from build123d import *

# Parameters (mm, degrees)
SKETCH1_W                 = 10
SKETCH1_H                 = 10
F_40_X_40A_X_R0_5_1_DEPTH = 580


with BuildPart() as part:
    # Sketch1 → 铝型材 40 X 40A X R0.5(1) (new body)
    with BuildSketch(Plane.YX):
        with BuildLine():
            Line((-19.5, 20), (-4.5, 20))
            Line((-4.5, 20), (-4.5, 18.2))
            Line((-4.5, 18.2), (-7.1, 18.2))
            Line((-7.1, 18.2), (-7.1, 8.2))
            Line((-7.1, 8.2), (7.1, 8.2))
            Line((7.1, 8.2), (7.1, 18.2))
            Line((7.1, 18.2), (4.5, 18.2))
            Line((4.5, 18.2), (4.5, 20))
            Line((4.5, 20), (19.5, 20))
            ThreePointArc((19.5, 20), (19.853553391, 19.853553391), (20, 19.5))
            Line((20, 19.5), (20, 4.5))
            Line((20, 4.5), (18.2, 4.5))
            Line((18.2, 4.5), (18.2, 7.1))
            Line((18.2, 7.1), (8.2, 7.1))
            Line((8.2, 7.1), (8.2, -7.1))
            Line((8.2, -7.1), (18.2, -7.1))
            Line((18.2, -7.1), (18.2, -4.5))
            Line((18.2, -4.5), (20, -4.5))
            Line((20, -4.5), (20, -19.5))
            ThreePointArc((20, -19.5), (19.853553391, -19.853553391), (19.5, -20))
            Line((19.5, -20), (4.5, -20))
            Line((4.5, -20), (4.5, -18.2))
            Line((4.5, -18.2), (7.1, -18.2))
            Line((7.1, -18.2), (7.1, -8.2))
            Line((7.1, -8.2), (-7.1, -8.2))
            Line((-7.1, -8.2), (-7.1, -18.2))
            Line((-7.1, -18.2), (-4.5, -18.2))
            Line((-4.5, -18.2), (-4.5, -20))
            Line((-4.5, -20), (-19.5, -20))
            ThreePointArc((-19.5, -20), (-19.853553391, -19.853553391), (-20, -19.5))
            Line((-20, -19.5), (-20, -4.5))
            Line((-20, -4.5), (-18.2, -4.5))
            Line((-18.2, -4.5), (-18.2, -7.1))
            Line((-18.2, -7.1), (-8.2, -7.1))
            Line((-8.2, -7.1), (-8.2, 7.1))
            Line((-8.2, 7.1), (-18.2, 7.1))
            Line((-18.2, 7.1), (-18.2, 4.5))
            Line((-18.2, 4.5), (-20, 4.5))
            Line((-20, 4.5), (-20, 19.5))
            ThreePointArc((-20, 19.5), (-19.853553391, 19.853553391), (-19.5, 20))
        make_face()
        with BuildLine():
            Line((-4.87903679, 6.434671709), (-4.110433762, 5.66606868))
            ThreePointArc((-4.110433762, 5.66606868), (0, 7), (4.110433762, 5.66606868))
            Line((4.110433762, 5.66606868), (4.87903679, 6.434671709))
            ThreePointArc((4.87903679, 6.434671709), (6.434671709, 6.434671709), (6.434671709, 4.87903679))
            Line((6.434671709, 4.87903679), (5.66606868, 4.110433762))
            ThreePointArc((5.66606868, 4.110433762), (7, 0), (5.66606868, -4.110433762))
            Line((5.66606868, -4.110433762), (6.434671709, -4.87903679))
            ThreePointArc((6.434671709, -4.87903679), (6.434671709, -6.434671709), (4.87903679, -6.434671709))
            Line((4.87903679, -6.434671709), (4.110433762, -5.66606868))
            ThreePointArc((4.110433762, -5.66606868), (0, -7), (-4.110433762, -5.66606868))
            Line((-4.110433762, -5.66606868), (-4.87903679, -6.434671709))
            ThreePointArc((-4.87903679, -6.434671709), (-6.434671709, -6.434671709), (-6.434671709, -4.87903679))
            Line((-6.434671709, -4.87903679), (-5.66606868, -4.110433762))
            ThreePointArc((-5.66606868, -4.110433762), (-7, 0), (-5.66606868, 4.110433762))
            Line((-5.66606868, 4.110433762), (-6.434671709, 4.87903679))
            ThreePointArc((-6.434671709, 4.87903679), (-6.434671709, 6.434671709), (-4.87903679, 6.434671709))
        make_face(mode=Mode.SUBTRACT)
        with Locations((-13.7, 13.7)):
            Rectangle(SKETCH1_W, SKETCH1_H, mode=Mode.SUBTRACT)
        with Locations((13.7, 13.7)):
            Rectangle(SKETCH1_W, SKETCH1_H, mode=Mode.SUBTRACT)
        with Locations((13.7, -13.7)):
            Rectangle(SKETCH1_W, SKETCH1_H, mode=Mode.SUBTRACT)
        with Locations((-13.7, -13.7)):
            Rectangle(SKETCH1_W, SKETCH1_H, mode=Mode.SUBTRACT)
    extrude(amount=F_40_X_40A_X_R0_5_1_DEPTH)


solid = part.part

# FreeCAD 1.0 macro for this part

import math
import FreeCAD as App
import Part
import Sketcher
Q = App.Units.Quantity

doc = App.newDocument("Part")
body = doc.addObject("PartDesign::Body", "Body")

sketch1 = body.newObject("Sketcher::SketchObject", "Sketch")
sketch1.AttachmentSupport = (doc.getObject("XY_Plane"), [""])
sketch1.MapMode = "FlatFace"
sketch1.addGeometry(Part.LineSegment(App.Vector(20, -4.5, 0), App.Vector(20, -19.5, 0)), False)
sketch1.addGeometry(Part.ArcOfCircle(Part.Circle(App.Vector(19.5, -19.5, 0), App.Vector(0, 0, 1), 0.5), math.radians(-90), math.radians(0)), False)
sketch1.addGeometry(Part.LineSegment(App.Vector(19.5, -20, 0), App.Vector(4.5, -20, 0)), False)
sketch1.addGeometry(Part.LineSegment(App.Vector(4.5, -20, 0), App.Vector(4.5, -18.2, 0)), False)
sketch1.addGeometry(Part.LineSegment(App.Vector(4.5, -18.2, 0), App.Vector(7.1, -18.2, 0)), False)
sketch1.addGeometry(Part.LineSegment(App.Vector(7.1, -18.2, 0), App.Vector(7.1, -8.2, 0)), False)
sketch1.addGeometry(Part.LineSegment(App.Vector(7.1, -8.2, 0), App.Vector(-7.1, -8.2, 0)), False)
sketch1.addGeometry(Part.LineSegment(App.Vector(-7.1, -8.2, 0), App.Vector(-7.1, -18.2, 0)), False)
sketch1.addGeometry(Part.LineSegment(App.Vector(-7.1, -18.2, 0), App.Vector(-4.5, -18.2, 0)), False)
sketch1.addGeometry(Part.LineSegment(App.Vector(-4.5, -18.2, 0), App.Vector(-4.5, -20, 0)), False)
sketch1.addGeometry(Part.LineSegment(App.Vector(-4.5, -20, 0), App.Vector(-19.5, -20, 0)), False)
sketch1.addGeometry(Part.ArcOfCircle(Part.Circle(App.Vector(-19.5, -19.5, 0), App.Vector(0, 0, 1), 0.5), math.radians(180), math.radians(270)), False)
sketch1.addGeometry(Part.LineSegment(App.Vector(-20, -19.5, 0), App.Vector(-20, -4.5, 0)), False)
sketch1.addGeometry(Part.LineSegment(App.Vector(-20, -4.5, 0), App.Vector(-18.2, -4.5, 0)), False)
sketch1.addGeometry(Part.LineSegment(App.Vector(-18.2, -4.5, 0), App.Vector(-18.2, -7.1, 0)), False)
sketch1.addGeometry(Part.LineSegment(App.Vector(-18.2, -7.1, 0), App.Vector(-8.2, -7.1, 0)), False)
sketch1.addGeometry(Part.LineSegment(App.Vector(-8.2, -7.1, 0), App.Vector(-8.2, 7.1, 0)), False)
sketch1.addGeometry(Part.LineSegment(App.Vector(-8.2, 7.1, 0), App.Vector(-18.2, 7.1, 0)), False)
sketch1.addGeometry(Part.LineSegment(App.Vector(-18.2, 7.1, 0), App.Vector(-18.2, 4.5, 0)), False)
sketch1.addGeometry(Part.LineSegment(App.Vector(-18.2, 4.5, 0), App.Vector(-20, 4.5, 0)), False)
sketch1.addGeometry(Part.LineSegment(App.Vector(-20, 4.5, 0), App.Vector(-20, 19.5, 0)), False)
sketch1.addGeometry(Part.ArcOfCircle(Part.Circle(App.Vector(-19.5, 19.5, 0), App.Vector(0, 0, 1), 0.5), math.radians(90), math.radians(180)), False)
sketch1.addGeometry(Part.LineSegment(App.Vector(-19.5, 20, 0), App.Vector(-4.5, 20, 0)), False)
sketch1.addGeometry(Part.LineSegment(App.Vector(-4.5, 20, 0), App.Vector(-4.5, 18.2, 0)), False)
sketch1.addGeometry(Part.LineSegment(App.Vector(-4.5, 18.2, 0), App.Vector(-7.1, 18.2, 0)), False)
sketch1.addGeometry(Part.LineSegment(App.Vector(-7.1, 18.2, 0), App.Vector(-7.1, 8.2, 0)), False)
sketch1.addGeometry(Part.LineSegment(App.Vector(-7.1, 8.2, 0), App.Vector(7.1, 8.2, 0)), False)
sketch1.addGeometry(Part.LineSegment(App.Vector(7.1, 8.2, 0), App.Vector(7.1, 18.2, 0)), False)
sketch1.addGeometry(Part.LineSegment(App.Vector(7.1, 18.2, 0), App.Vector(4.5, 18.2, 0)), False)
sketch1.addGeometry(Part.LineSegment(App.Vector(4.5, 18.2, 0), App.Vector(4.5, 20, 0)), False)
sketch1.addGeometry(Part.LineSegment(App.Vector(4.5, 20, 0), App.Vector(19.5, 20, 0)), False)
sketch1.addGeometry(Part.ArcOfCircle(Part.Circle(App.Vector(19.5, 19.5, 0), App.Vector(0, 0, 1), 0.5), math.radians(0), math.radians(90)), False)
sketch1.addGeometry(Part.LineSegment(App.Vector(20, 19.5, 0), App.Vector(20, 4.5, 0)), False)
sketch1.addGeometry(Part.LineSegment(App.Vector(20, 4.5, 0), App.Vector(18.2, 4.5, 0)), False)
sketch1.addGeometry(Part.LineSegment(App.Vector(18.2, 4.5, 0), App.Vector(18.2, 7.1, 0)), False)
sketch1.addGeometry(Part.LineSegment(App.Vector(18.2, 7.1, 0), App.Vector(8.2, 7.1, 0)), False)
sketch1.addGeometry(Part.LineSegment(App.Vector(8.2, 7.1, 0), App.Vector(8.2, -7.1, 0)), False)
sketch1.addGeometry(Part.LineSegment(App.Vector(8.2, -7.1, 0), App.Vector(18.2, -7.1, 0)), False)
sketch1.addGeometry(Part.LineSegment(App.Vector(18.2, -7.1, 0), App.Vector(18.2, -4.5, 0)), False)
sketch1.addGeometry(Part.LineSegment(App.Vector(18.2, -4.5, 0), App.Vector(20, -4.5, 0)), False)
sketch1.addGeometry(Part.LineSegment(App.Vector(-18.7, 8.7, 0), App.Vector(-8.7, 8.7, 0)), False)
sketch1.addGeometry(Part.LineSegment(App.Vector(-8.7, 8.7, 0), App.Vector(-8.7, 18.7, 0)), False)
sketch1.addGeometry(Part.LineSegment(App.Vector(-8.7, 18.7, 0), App.Vector(-18.7, 18.7, 0)), False)
sketch1.addGeometry(Part.LineSegment(App.Vector(-18.7, 18.7, 0), App.Vector(-18.7, 8.7, 0)), False)
sketch1.addGeometry(Part.LineSegment(App.Vector(6.43, -4.88, 0), App.Vector(5.67, -4.11, 0)), False)
sketch1.addGeometry(Part.ArcOfCircle(Part.Circle(App.Vector(0, 0, 0), App.Vector(0, 0, 1), 7), math.radians(-36), math.radians(36)), False)
sketch1.addGeometry(Part.LineSegment(App.Vector(5.67, 4.11, 0), App.Vector(6.43, 4.88, 0)), False)
sketch1.addGeometry(Part.ArcOfCircle(Part.Circle(App.Vector(5.66, 5.66, 0), App.Vector(0, 0, 1), 1.1), math.radians(-45), math.radians(135)), False)
sketch1.addGeometry(Part.LineSegment(App.Vector(4.88, 6.43, 0), App.Vector(4.11, 5.67, 0)), False)
sketch1.addGeometry(Part.ArcOfCircle(Part.Circle(App.Vector(0, 0, 0), App.Vector(0, 0, 1), 7), math.radians(54), math.radians(126)), False)
sketch1.addGeometry(Part.LineSegment(App.Vector(-4.11, 5.67, 0), App.Vector(-4.88, 6.43, 0)), False)
sketch1.addGeometry(Part.ArcOfCircle(Part.Circle(App.Vector(-5.66, 5.66, 0), App.Vector(0, 0, 1), 1.1), math.radians(45), math.radians(225)), False)
sketch1.addGeometry(Part.LineSegment(App.Vector(-6.43, 4.88, 0), App.Vector(-5.67, 4.11, 0)), False)
sketch1.addGeometry(Part.ArcOfCircle(Part.Circle(App.Vector(0, 0, 0), App.Vector(0, 0, 1), 7), math.radians(144), math.radians(216)), False)
sketch1.addGeometry(Part.LineSegment(App.Vector(-5.67, -4.11, 0), App.Vector(-6.43, -4.88, 0)), False)
sketch1.addGeometry(Part.ArcOfCircle(Part.Circle(App.Vector(-5.66, -5.66, 0), App.Vector(0, 0, 1), 1.1), math.radians(135), math.radians(315)), False)
sketch1.addGeometry(Part.LineSegment(App.Vector(-4.88, -6.43, 0), App.Vector(-4.11, -5.67, 0)), False)
sketch1.addGeometry(Part.ArcOfCircle(Part.Circle(App.Vector(0, 0, 0), App.Vector(0, 0, 1), 7), math.radians(-126), math.radians(-54)), False)
sketch1.addGeometry(Part.LineSegment(App.Vector(4.11, -5.67, 0), App.Vector(4.88, -6.43, 0)), False)
sketch1.addGeometry(Part.ArcOfCircle(Part.Circle(App.Vector(5.66, -5.66, 0), App.Vector(0, 0, 1), 1.1), math.radians(-135), math.radians(45)), False)
sketch1.addGeometry(Part.LineSegment(App.Vector(-18.7, -18.7, 0), App.Vector(-8.7, -18.7, 0)), False)
sketch1.addGeometry(Part.LineSegment(App.Vector(-8.7, -18.7, 0), App.Vector(-8.7, -8.7, 0)), False)
sketch1.addGeometry(Part.LineSegment(App.Vector(-8.7, -8.7, 0), App.Vector(-18.7, -8.7, 0)), False)
sketch1.addGeometry(Part.LineSegment(App.Vector(-18.7, -8.7, 0), App.Vector(-18.7, -18.7, 0)), False)
sketch1.addGeometry(Part.LineSegment(App.Vector(8.7, 8.7, 0), App.Vector(18.7, 8.7, 0)), False)
sketch1.addGeometry(Part.LineSegment(App.Vector(18.7, 8.7, 0), App.Vector(18.7, 18.7, 0)), False)
sketch1.addGeometry(Part.LineSegment(App.Vector(18.7, 18.7, 0), App.Vector(8.7, 18.7, 0)), False)
sketch1.addGeometry(Part.LineSegment(App.Vector(8.7, 18.7, 0), App.Vector(8.7, 8.7, 0)), False)
sketch1.addGeometry(Part.LineSegment(App.Vector(8.7, -18.7, 0), App.Vector(18.7, -18.7, 0)), False)
sketch1.addGeometry(Part.LineSegment(App.Vector(18.7, -18.7, 0), App.Vector(18.7, -8.7, 0)), False)
sketch1.addGeometry(Part.LineSegment(App.Vector(18.7, -8.7, 0), App.Vector(8.7, -8.7, 0)), False)
sketch1.addGeometry(Part.LineSegment(App.Vector(8.7, -8.7, 0), App.Vector(8.7, -18.7, 0)), False)
sketch1.addConstraint(Sketcher.Constraint("Tangent", 0, 2, 1, 2))
sketch1.addConstraint(Sketcher.Constraint("Tangent", 1, 1, 2, 1))
sketch1.addConstraint(Sketcher.Constraint("Coincident", 2, 2, 3, 1))
sketch1.addConstraint(Sketcher.Constraint("Coincident", 3, 2, 4, 1))
sketch1.addConstraint(Sketcher.Constraint("Coincident", 4, 2, 5, 1))
sketch1.addConstraint(Sketcher.Constraint("Coincident", 5, 2, 6, 1))
sketch1.addConstraint(Sketcher.Constraint("Coincident", 6, 2, 7, 1))
sketch1.addConstraint(Sketcher.Constraint("Coincident", 7, 2, 8, 1))
sketch1.addConstraint(Sketcher.Constraint("Coincident", 8, 2, 9, 1))
sketch1.addConstraint(Sketcher.Constraint("Coincident", 9, 2, 10, 1))
sketch1.addConstraint(Sketcher.Constraint("Tangent", 10, 2, 11, 2))
sketch1.addConstraint(Sketcher.Constraint("Tangent", 11, 1, 12, 1))
sketch1.addConstraint(Sketcher.Constraint("Coincident", 12, 2, 13, 1))
sketch1.addConstraint(Sketcher.Constraint("Coincident", 13, 2, 14, 1))
sketch1.addConstraint(Sketcher.Constraint("Coincident", 14, 2, 15, 1))
sketch1.addConstraint(Sketcher.Constraint("Coincident", 15, 2, 16, 1))
sketch1.addConstraint(Sketcher.Constraint("Coincident", 16, 2, 17, 1))
sketch1.addConstraint(Sketcher.Constraint("Coincident", 17, 2, 18, 1))
sketch1.addConstraint(Sketcher.Constraint("Coincident", 18, 2, 19, 1))
sketch1.addConstraint(Sketcher.Constraint("Coincident", 19, 2, 20, 1))
sketch1.addConstraint(Sketcher.Constraint("Tangent", 20, 2, 21, 2))
sketch1.addConstraint(Sketcher.Constraint("Tangent", 21, 1, 22, 1))
sketch1.addConstraint(Sketcher.Constraint("Coincident", 22, 2, 23, 1))
sketch1.addConstraint(Sketcher.Constraint("Coincident", 23, 2, 24, 1))
sketch1.addConstraint(Sketcher.Constraint("Coincident", 24, 2, 25, 1))
sketch1.addConstraint(Sketcher.Constraint("Coincident", 25, 2, 26, 1))
sketch1.addConstraint(Sketcher.Constraint("Coincident", 26, 2, 27, 1))
sketch1.addConstraint(Sketcher.Constraint("Coincident", 27, 2, 28, 1))
sketch1.addConstraint(Sketcher.Constraint("Coincident", 28, 2, 29, 1))
sketch1.addConstraint(Sketcher.Constraint("Coincident", 29, 2, 30, 1))
sketch1.addConstraint(Sketcher.Constraint("Tangent", 30, 2, 31, 2))
sketch1.addConstraint(Sketcher.Constraint("Tangent", 31, 1, 32, 1))
sketch1.addConstraint(Sketcher.Constraint("Coincident", 32, 2, 33, 1))
sketch1.addConstraint(Sketcher.Constraint("Coincident", 33, 2, 34, 1))
sketch1.addConstraint(Sketcher.Constraint("Coincident", 34, 2, 35, 1))
sketch1.addConstraint(Sketcher.Constraint("Coincident", 35, 2, 36, 1))
sketch1.addConstraint(Sketcher.Constraint("Coincident", 36, 2, 37, 1))
sketch1.addConstraint(Sketcher.Constraint("Coincident", 37, 2, 38, 1))
sketch1.addConstraint(Sketcher.Constraint("Coincident", 38, 2, 39, 1))
sketch1.addConstraint(Sketcher.Constraint("Coincident", 39, 2, 0, 1))
sketch1.addConstraint(Sketcher.Constraint("Coincident", 40, 2, 41, 1))
sketch1.addConstraint(Sketcher.Constraint("Coincident", 41, 2, 42, 1))
sketch1.addConstraint(Sketcher.Constraint("Coincident", 42, 2, 43, 1))
sketch1.addConstraint(Sketcher.Constraint("Coincident", 43, 2, 40, 1))
sketch1.addConstraint(Sketcher.Constraint("Coincident", 44, 2, 45, 1))
sketch1.addConstraint(Sketcher.Constraint("Coincident", 45, 2, 46, 1))
sketch1.addConstraint(Sketcher.Constraint("Tangent", 46, 2, 47, 1))
sketch1.addConstraint(Sketcher.Constraint("Tangent", 47, 2, 48, 1))
sketch1.addConstraint(Sketcher.Constraint("Coincident", 48, 2, 49, 1))
sketch1.addConstraint(Sketcher.Constraint("Coincident", 49, 2, 50, 1))
sketch1.addConstraint(Sketcher.Constraint("Tangent", 50, 2, 51, 1))
sketch1.addConstraint(Sketcher.Constraint("Tangent", 51, 2, 52, 1))
sketch1.addConstraint(Sketcher.Constraint("Coincident", 52, 2, 53, 1))
sketch1.addConstraint(Sketcher.Constraint("Coincident", 53, 2, 54, 1))
sketch1.addConstraint(Sketcher.Constraint("Tangent", 54, 2, 55, 1))
sketch1.addConstraint(Sketcher.Constraint("Tangent", 55, 2, 56, 1))
sketch1.addConstraint(Sketcher.Constraint("Coincident", 56, 2, 57, 1))
sketch1.addConstraint(Sketcher.Constraint("Coincident", 57, 2, 58, 1))
sketch1.addConstraint(Sketcher.Constraint("Tangent", 58, 2, 59, 1))
sketch1.addConstraint(Sketcher.Constraint("Tangent", 59, 2, 44, 1))
sketch1.addConstraint(Sketcher.Constraint("Coincident", 60, 2, 61, 1))
sketch1.addConstraint(Sketcher.Constraint("Coincident", 61, 2, 62, 1))
sketch1.addConstraint(Sketcher.Constraint("Coincident", 62, 2, 63, 1))
sketch1.addConstraint(Sketcher.Constraint("Coincident", 63, 2, 60, 1))
sketch1.addConstraint(Sketcher.Constraint("Coincident", 64, 2, 65, 1))
sketch1.addConstraint(Sketcher.Constraint("Coincident", 65, 2, 66, 1))
sketch1.addConstraint(Sketcher.Constraint("Coincident", 66, 2, 67, 1))
sketch1.addConstraint(Sketcher.Constraint("Coincident", 67, 2, 64, 1))
sketch1.addConstraint(Sketcher.Constraint("Coincident", 68, 2, 69, 1))
sketch1.addConstraint(Sketcher.Constraint("Coincident", 69, 2, 70, 1))
sketch1.addConstraint(Sketcher.Constraint("Coincident", 70, 2, 71, 1))
sketch1.addConstraint(Sketcher.Constraint("Coincident", 71, 2, 68, 1))
sketch1.addConstraint(Sketcher.Constraint("Vertical", 0))
sketch1.addConstraint(Sketcher.Constraint("Horizontal", 2))
sketch1.addConstraint(Sketcher.Constraint("Vertical", 3))
sketch1.addConstraint(Sketcher.Constraint("Horizontal", 4))
sketch1.addConstraint(Sketcher.Constraint("Vertical", 5))
sketch1.addConstraint(Sketcher.Constraint("Horizontal", 6))
sketch1.addConstraint(Sketcher.Constraint("Vertical", 7))
sketch1.addConstraint(Sketcher.Constraint("Horizontal", 8))
sketch1.addConstraint(Sketcher.Constraint("Vertical", 9))
sketch1.addConstraint(Sketcher.Constraint("Horizontal", 10))
sketch1.addConstraint(Sketcher.Constraint("Vertical", 12))
sketch1.addConstraint(Sketcher.Constraint("Horizontal", 13))
sketch1.addConstraint(Sketcher.Constraint("Vertical", 14))
sketch1.addConstraint(Sketcher.Constraint("Horizontal", 15))
sketch1.addConstraint(Sketcher.Constraint("Vertical", 16))
sketch1.addConstraint(Sketcher.Constraint("Horizontal", 17))
sketch1.addConstraint(Sketcher.Constraint("Vertical", 18))
sketch1.addConstraint(Sketcher.Constraint("Horizontal", 19))
sketch1.addConstraint(Sketcher.Constraint("Vertical", 20))
sketch1.addConstraint(Sketcher.Constraint("Horizontal", 22))
sketch1.addConstraint(Sketcher.Constraint("Vertical", 23))
sketch1.addConstraint(Sketcher.Constraint("Horizontal", 24))
sketch1.addConstraint(Sketcher.Constraint("Vertical", 25))
sketch1.addConstraint(Sketcher.Constraint("Horizontal", 26))
sketch1.addConstraint(Sketcher.Constraint("Vertical", 27))
sketch1.addConstraint(Sketcher.Constraint("Horizontal", 28))
sketch1.addConstraint(Sketcher.Constraint("Vertical", 29))
sketch1.addConstraint(Sketcher.Constraint("Horizontal", 30))
sketch1.addConstraint(Sketcher.Constraint("Vertical", 32))
sketch1.addConstraint(Sketcher.Constraint("Horizontal", 33))
sketch1.addConstraint(Sketcher.Constraint("Vertical", 34))
sketch1.addConstraint(Sketcher.Constraint("Horizontal", 35))
sketch1.addConstraint(Sketcher.Constraint("Vertical", 36))
sketch1.addConstraint(Sketcher.Constraint("Horizontal", 37))
sketch1.addConstraint(Sketcher.Constraint("Vertical", 38))
sketch1.addConstraint(Sketcher.Constraint("Horizontal", 39))
sketch1.addConstraint(Sketcher.Constraint("Horizontal", 40))
sketch1.addConstraint(Sketcher.Constraint("Vertical", 41))
sketch1.addConstraint(Sketcher.Constraint("Horizontal", 42))
sketch1.addConstraint(Sketcher.Constraint("Vertical", 43))
sketch1.addConstraint(Sketcher.Constraint("Horizontal", 60))
sketch1.addConstraint(Sketcher.Constraint("Vertical", 61))
sketch1.addConstraint(Sketcher.Constraint("Horizontal", 62))
sketch1.addConstraint(Sketcher.Constraint("Vertical", 63))
sketch1.addConstraint(Sketcher.Constraint("Horizontal", 64))
sketch1.addConstraint(Sketcher.Constraint("Vertical", 65))
sketch1.addConstraint(Sketcher.Constraint("Horizontal", 66))
sketch1.addConstraint(Sketcher.Constraint("Vertical", 67))
sketch1.addConstraint(Sketcher.Constraint("Horizontal", 68))
sketch1.addConstraint(Sketcher.Constraint("Vertical", 69))
sketch1.addConstraint(Sketcher.Constraint("Horizontal", 70))
sketch1.addConstraint(Sketcher.Constraint("Vertical", 71))
sketch1.addConstraint(Sketcher.Constraint("Coincident", 45, 3, -1, 1))
sketch1.addConstraint(Sketcher.Constraint("Coincident", 49, 3, -1, 1))
sketch1.addConstraint(Sketcher.Constraint("Coincident", 53, 3, -1, 1))
sketch1.addConstraint(Sketcher.Constraint("Coincident", 57, 3, -1, 1))
sketch1.addConstraint(Sketcher.Constraint("Equal", 1, 11))
sketch1.addConstraint(Sketcher.Constraint("Equal", 11, 21))
sketch1.addConstraint(Sketcher.Constraint("Equal", 21, 31))
sketch1.addConstraint(Sketcher.Constraint("Equal", 45, 49))
sketch1.addConstraint(Sketcher.Constraint("Equal", 47, 51))
sketch1.addConstraint(Sketcher.Constraint("Equal", 49, 53))
sketch1.addConstraint(Sketcher.Constraint("Equal", 51, 55))
sketch1.addConstraint(Sketcher.Constraint("Equal", 53, 57))
sketch1.addConstraint(Sketcher.Constraint("Equal", 55, 59))
sketch1.addConstraint(Sketcher.Constraint("Symmetric", 1, 3, 21, 3, -1, 1))
sketch1.addConstraint(Sketcher.Constraint("Symmetric", 11, 3, 31, 3, -1, 1))
sketch1.addConstraint(Sketcher.Constraint("Symmetric", 47, 3, 55, 3, -1, 1))
sketch1.addConstraint(Sketcher.Constraint("Symmetric", 51, 3, 59, 3, -1, 1))
sketch1.addConstraint(Sketcher.Constraint("Symmetric", 3, 2, 23, 2, -1, 1))
sketch1.addConstraint(Sketcher.Constraint("Symmetric", 5, 2, 25, 2, -1, 1))
sketch1.addConstraint(Sketcher.Constraint("Symmetric", 7, 2, 27, 2, -1, 1))
sketch1.addConstraint(Sketcher.Constraint("Symmetric", 13, 2, 33, 2, -1, 1))
sketch1.addConstraint(Sketcher.Constraint("Symmetric", 15, 2, 35, 2, -1, 1))
sketch1.addConstraint(Sketcher.Constraint("Symmetric", 17, 2, 37, 2, -1, 1))
sketch1.addConstraint(Sketcher.Constraint("Symmetric", 62, 2, 64, 2, -1, 1))
sketch1.addConstraint(Sketcher.Constraint("Symmetric", 60, 2, 66, 2, -1, 1))
sketch1.addConstraint(Sketcher.Constraint("Symmetric", 42, 2, 68, 2, -1, 1))
sketch1.addConstraint(Sketcher.Constraint("Symmetric", 40, 2, 70, 2, -1, 1))
sketch1.addConstraint(Sketcher.Constraint("Symmetric", 1, 3, 11, 3, -2))
sketch1.addConstraint(Sketcher.Constraint("Symmetric", 47, 3, 51, 3, -2))
sketch1.addConstraint(Sketcher.Constraint("Symmetric", 4, 2, 7, 2, -2))
sketch1.addConstraint(Sketcher.Constraint("Symmetric", 18, 2, 33, 2, -2))
sketch1.addConstraint(Sketcher.Constraint("Symmetric", 43, 2, 64, 2, -2))
sketch1.addConstraint(Sketcher.Constraint("Symmetric", 41, 2, 66, 2, -2))
sketch1.addConstraint(Sketcher.Constraint("Perpendicular", 44, 46))
sketch1.addConstraint(Sketcher.Constraint("Parallel", 46, 48))
sketch1.addConstraint(Sketcher.Constraint("Perpendicular", 48, 50))
sketch1.addConstraint(Sketcher.Constraint("Parallel", 50, 52))
sketch1.addConstraint(Sketcher.Constraint("Perpendicular", 52, 54))
sketch1.addConstraint(Sketcher.Constraint("Parallel", 54, 56))
sketch1.addConstraint(Sketcher.Constraint("Perpendicular", 56, 58))
sketch1.addConstraint(Sketcher.Constraint("Horizontal", 17, 2, 34, 2))
sketch1.addConstraint(Sketcher.Constraint("Horizontal", 13, 2, 38, 2))
sketch1.addConstraint(Sketcher.Constraint("Horizontal", 48, 2, 49, 2))
sketch1.addConstraint(Sketcher.Constraint("Vertical", 9, 2, 22, 2))
sketch1.addConstraint(Sketcher.Constraint("Vertical", 3, 2, 28, 2))
sketch1.addConstraint(Sketcher.Constraint("Equal", 37, 40))
sketch1.addConstraint(Sketcher.Constraint("Equal", 30, 0))
sketch1.addConstraint(Sketcher.Constraint("Equal", 39, 3))
sketch1.addConstraint(Sketcher.Constraint("Equal", 70, 5))
sketch1.addConstraint(Sketcher.Constraint("Equal", 28, 14))
sketch1.addConstraint(Sketcher.Constraint("Equal", 26, 16))
sketch1.addConstraint(Sketcher.Constraint("Equal", 27, 41))
sketch1.addConstraint(Sketcher.Constraint("Equal", 46, 48))
sketch1.addConstraint(Sketcher.Constraint("Radius", 45, Q("7 mm")))
sketch1.addConstraint(Sketcher.Constraint("Radius", 1, Q("0.5 mm")))
sketch1.addConstraint(Sketcher.Constraint("Radius", 47, Q("1.1 mm")))
sketch1.addConstraint(Sketcher.Constraint("DistanceX", 2, 2, 2, 1, Q("15 mm")))
sketch1.addConstraint(Sketcher.Constraint("DistanceX", 15, 1, 15, 2, Q("10 mm")))
sketch1.addConstraint(Sketcher.Constraint("DistanceX", 4, 1, 4, 2, Q("2.6 mm")))
sketch1.addConstraint(Sketcher.Constraint("DistanceX", 6, 2, 6, 1, Q("14.2 mm")))
sketch1.addConstraint(Sketcher.Constraint("DistanceX", 13, 1, 13, 2, Q("1.8 mm")))
sketch1.addConstraint(Sketcher.Constraint("DistanceX", 40, 2, -1, 1, Q("8.7 mm")))
sketch1.addConstraint(Sketcher.Constraint("DistanceY", -1, 1, 40, 2, Q("8.7 mm")))
sketch1.addConstraint(Sketcher.Constraint("Distance", 44, Q("1.086969 mm")))
pad1 = body.newObject("PartDesign::Pad", "Pad")
pad1.Profile = sketch1
pad1.Length = 580
pad1.Reversed = True

doc.recompute()
